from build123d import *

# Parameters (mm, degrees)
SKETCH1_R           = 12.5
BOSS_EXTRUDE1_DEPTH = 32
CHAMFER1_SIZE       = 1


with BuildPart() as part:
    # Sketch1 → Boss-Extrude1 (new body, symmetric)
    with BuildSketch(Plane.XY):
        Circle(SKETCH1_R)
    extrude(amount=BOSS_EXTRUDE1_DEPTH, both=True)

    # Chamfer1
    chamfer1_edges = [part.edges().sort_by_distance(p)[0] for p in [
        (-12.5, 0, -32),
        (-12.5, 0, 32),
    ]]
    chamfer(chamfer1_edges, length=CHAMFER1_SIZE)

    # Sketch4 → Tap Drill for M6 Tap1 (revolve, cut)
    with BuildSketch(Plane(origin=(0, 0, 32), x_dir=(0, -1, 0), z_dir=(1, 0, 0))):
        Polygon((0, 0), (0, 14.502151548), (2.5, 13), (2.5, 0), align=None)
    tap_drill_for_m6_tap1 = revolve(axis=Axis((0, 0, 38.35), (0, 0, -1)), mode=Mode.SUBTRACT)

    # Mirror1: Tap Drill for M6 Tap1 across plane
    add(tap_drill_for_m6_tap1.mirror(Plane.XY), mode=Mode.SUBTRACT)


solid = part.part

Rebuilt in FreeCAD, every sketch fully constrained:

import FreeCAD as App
import Part
import Sketcher
from FreeCAD import Vector
Q = App.Units.Quantity


def edges_at(feature, points):
    """Names of the edges that pass closest to the given points."""
    edges = feature.Shape.Edges
    near = lambda p: min(range(len(edges)), key=lambda i: edges[i].distToShape(Part.Vertex(*p))[0])
    return sorted({f"Edge{near(p) + 1}" for p in points})


def add_polygon(sketch, points):
    """Adds a closed chain of lines whose ends are joined by coincident constraints."""
    first, n = sketch.GeometryCount, len(points)
    for a, b in zip(points, points[1:] + points[:1]):
        sketch.addGeometry(Part.LineSegment(App.Vector(*a, 0), App.Vector(*b, 0)), False)
    for i in range(n):
        sketch.addConstraint(Sketcher.Constraint("Coincident", first + i, 2, first + (i + 1) % n, 1))

doc = App.newDocument("Part")
body = doc.addObject("PartDesign::Body", "Body")

# Sketch on XY plane
sketch1 = body.newObject("Sketcher::SketchObject", "Sketch")
sketch1.AttachmentSupport = (doc.getObject("XY_Plane"), [""])
sketch1.MapMode = "FlatFace"
sketch1.addGeometry(Part.Circle(Vector(0, 0, 0), Vector(0, 0, 1), 12), False)
sketch1.addConstraint([
    Sketcher.Constraint("Coincident", 0, 3, -1, 1),
    Sketcher.Constraint("Diameter", 0, 25.0),
])
pad1 = body.newObject("PartDesign::Pad", "Pad")
pad1.Profile = sketch1
pad1.Length = 64
pad1.Midplane = True
doc.recompute()

chamfer = body.newObject("PartDesign::Chamfer", "Chamfer")
chamfer.Base = (pad1, edges_at(pad1, [(-12.5, 0, -32), (-12.5, 0, 32)]))
chamfer.Size = 1

# Sketch on YZ plane
sketch2 = body.newObject("Sketcher::SketchObject", "Sketch001")
sketch2.AttachmentSupport = (doc.getObject("YZ_Plane"), [""])
sketch2.MapMode = "FlatFace"
add_polygon(sketch2, [(0, 17.5), (0, 32), (-2.5, 32), (-2.5, 19)])  # lines 0-3
sketch2.addConstraint([
    Sketcher.Constraint("Vertical", 0),
    Sketcher.Constraint("Horizontal", 1),
    Sketcher.Constraint("Vertical", 2),
    Sketcher.Constraint("PointOnObject", 0, 2, -2),
    Sketcher.Constraint("DistanceY", 2, 2, 2, 1, 13.0),
    Sketcher.Constraint("Angle", 3, Q("-31 deg")),
    Sketcher.Constraint("DistanceX", 1, 2, 1, 1, 2.5),
    Sketcher.Constraint("DistanceY", -1, 1, 0, 2, 32.0),
])
groove = body.newObject("PartDesign::Groove", "Groove")
groove.Profile = sketch2
groove.ReferenceAxis = (sketch2, ["V_Axis"])
groove.Angle = 360
doc.recompute()

mirrored = body.newObject("PartDesign::Mirrored", "Mirrored")
mirrored.Originals = [groove]
mirrored.MirrorPlane = (doc.getObject("XY_Plane"), [""])
body.Tip = mirrored

doc.recompute()
